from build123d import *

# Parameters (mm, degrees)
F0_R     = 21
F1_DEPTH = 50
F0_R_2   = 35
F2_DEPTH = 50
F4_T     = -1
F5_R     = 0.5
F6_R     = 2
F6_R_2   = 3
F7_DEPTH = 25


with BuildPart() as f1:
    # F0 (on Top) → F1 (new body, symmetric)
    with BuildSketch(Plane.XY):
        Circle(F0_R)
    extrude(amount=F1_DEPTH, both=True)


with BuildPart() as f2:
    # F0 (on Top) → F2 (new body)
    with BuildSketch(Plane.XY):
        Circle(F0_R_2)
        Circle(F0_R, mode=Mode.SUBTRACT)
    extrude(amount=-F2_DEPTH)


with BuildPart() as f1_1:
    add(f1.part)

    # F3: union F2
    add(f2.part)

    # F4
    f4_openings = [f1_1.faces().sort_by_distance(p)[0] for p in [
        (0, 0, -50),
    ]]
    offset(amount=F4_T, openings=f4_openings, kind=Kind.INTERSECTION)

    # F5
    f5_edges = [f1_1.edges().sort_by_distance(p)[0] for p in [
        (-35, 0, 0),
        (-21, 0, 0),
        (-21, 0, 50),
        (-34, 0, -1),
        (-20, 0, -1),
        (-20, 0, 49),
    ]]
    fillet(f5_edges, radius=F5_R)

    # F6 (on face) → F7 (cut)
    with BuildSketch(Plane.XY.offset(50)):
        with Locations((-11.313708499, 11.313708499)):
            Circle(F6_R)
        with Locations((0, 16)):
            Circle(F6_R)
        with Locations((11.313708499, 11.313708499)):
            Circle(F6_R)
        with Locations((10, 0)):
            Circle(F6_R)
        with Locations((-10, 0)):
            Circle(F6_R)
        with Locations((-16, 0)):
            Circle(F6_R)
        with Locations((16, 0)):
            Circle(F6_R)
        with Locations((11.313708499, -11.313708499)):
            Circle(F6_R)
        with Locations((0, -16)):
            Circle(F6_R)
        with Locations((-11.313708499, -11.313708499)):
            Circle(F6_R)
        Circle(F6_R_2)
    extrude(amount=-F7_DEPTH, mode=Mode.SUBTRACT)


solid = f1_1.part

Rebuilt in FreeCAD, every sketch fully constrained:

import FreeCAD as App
import Part
import Sketcher


def edges_at(feature, points):
    """Names of the edges that pass closest to the given points."""
    edges = feature.Shape.Edges
    near = lambda p: min(range(len(edges)), key=lambda i: edges[i].distToShape(Part.Vertex(*p))[0])
    return sorted({f"Edge{near(p) + 1}" for p in points})


def faces_at(feature, points):
    """Names of the faces that lie closest to the given points."""
    faces = feature.Shape.Faces
    near = lambda p: min(range(len(faces)), key=lambda i: faces[i].distToShape(Part.Vertex(*p))[0])
    return sorted({f"Face{near(p) + 1}" for p in points})

doc = App.newDocument("Part")
params = doc.addObject("Spreadsheet::Sheet", "Params")
for row, (alias, value) in enumerate([
    ("sketch1_diameter", "42 mm"),
    ("pad1_length", "100 mm"),
    ("sketch2_diameter", "70 mm"),
    ("sketch2_diameter2", "42 mm"),
    ("pad2_length", "50 mm"),
    ("thickness_wall", "1 mm"),
    ("fillet_radius", "0.5 mm"),
    ("sketch3_diameter", "4 mm"),
    ("sketch3_diameter2", "6 mm"),
    ("pocket1_length", "25 mm"),
], start=1):
    params.set(f"A{row}", alias)
    params.set(f"B{row}", "=" + value)
    params.setAlias(f"B{row}", alias)

body = doc.addObject("PartDesign::Body", "Body")

sketch1 = body.newObject("Sketcher::SketchObject", "Sketch")
sketch1.AttachmentSupport = (doc.getObject("XY_Plane"), [""])
sketch1.MapMode = "FlatFace"
sketch1.addGeometry(Part.Circle(App.Vector(0, 0, 0), App.Vector(0, 0, 1), 21), False)
sketch1.addConstraint([
    Sketcher.Constraint("Coincident", 0, 3, -1, 1),
    Sketcher.Constraint("Diameter", 0, 42.0),
])
sketch1.setExpression("Constraints[1]", "Params.sketch1_diameter")
pad1 = body.newObject("PartDesign::Pad", "Pad")
pad1.Profile = sketch1
pad1.setExpression("Length", "Params.pad1_length")
pad1.Midplane = True
body2 = doc.addObject("PartDesign::Body", "Body001")

sketch2 = body2.newObject("Sketcher::SketchObject", "Sketch001")
sketch2.AttachmentSupport = (doc.getObject("XY_Plane001"), [""])
sketch2.MapMode = "FlatFace"
sketch2.addGeometry([
    Part.Circle(App.Vector(0, 0, 0), App.Vector(0, 0, 1), 35),
    Part.Circle(App.Vector(0, 0, 0), App.Vector(0, 0, 1), 21),
], False)
sketch2.addConstraint([
    Sketcher.Constraint("Coincident", 0, 3, -1, 1),
    Sketcher.Constraint("Coincident", 1, 3, -1, 1),
    Sketcher.Constraint("Diameter", 0, 70.0),
    Sketcher.Constraint("Diameter", 1, 42.0),
])
sketch2.setExpression("Constraints[2]", "Params.sketch2_diameter")
sketch2.setExpression("Constraints[3]", "Params.sketch2_diameter2")
pad2 = body2.newObject("PartDesign::Pad", "Pad001")
pad2.Profile = sketch2
pad2.setExpression("Length", "Params.pad2_length")
pad2.Reversed = True
doc.recompute()

boolean = body.newObject("PartDesign::Boolean", "Boolean")
boolean.Type = "Fuse"
boolean.addObjects([body2])
doc.recompute()

thickness = body.newObject("PartDesign::Thickness", "Thickness")
thickness.Base = (boolean, faces_at(boolean, [(0, 0, -50)]))
thickness.setExpression("Value", "Params.thickness_wall")
thickness.Reversed = True
thickness.Join = "Intersection"
doc.recompute()

fillet = body.newObject("PartDesign::Fillet", "Fillet")
fillet.Base = (thickness, edges_at(thickness, [
    (-35, 0, 0),
    (-21, 0, 0),
    (-21, 0, 50),
    (-34, 0, -1),
    (-20, 0, -1),
    (-20, 0, 49),
]))
fillet.setExpression("Radius", "Params.fillet_radius")

sketch3 = body.newObject("Sketcher::SketchObject", "Sketch002")
sketch3.AttachmentSupport = (doc.getObject("XY_Plane"), [""])
sketch3.MapMode = "FlatFace"
sketch3.AttachmentOffset = App.Placement(App.Vector(0, 0, 50), App.Rotation())
sketch3.addGeometry([
    Part.Circle(App.Vector(-11.3, 11.3, 0), App.Vector(0, 0, 1), 2),
    Part.Circle(App.Vector(0, 16, 0), App.Vector(0, 0, 1), 2),
    Part.Circle(App.Vector(11.3, 11.3, 0), App.Vector(0, 0, 1), 2),
    Part.Circle(App.Vector(10, 0, 0), App.Vector(0, 0, 1), 2),
    Part.Circle(App.Vector(-10, 0, 0), App.Vector(0, 0, 1), 2),
    Part.Circle(App.Vector(-16, 0, 0), App.Vector(0, 0, 1), 2),
    Part.Circle(App.Vector(16, 0, 0), App.Vector(0, 0, 1), 2),
    Part.Circle(App.Vector(11.3, -11.3, 0), App.Vector(0, 0, 1), 2),
    Part.Circle(App.Vector(0, -16, 0), App.Vector(0, 0, 1), 2),
    Part.Circle(App.Vector(-11.3, -11.3, 0), App.Vector(0, 0, 1), 2),
    Part.Circle(App.Vector(0, 0, 0), App.Vector(0, 0, 1), 3),
], False)
sketch3.addConstraint([
    Sketcher.Constraint("Coincident", 10, 3, -1, 1),
    Sketcher.Constraint("Equal", 0, 1),
    Sketcher.Constraint("Equal", 1, 2),
    Sketcher.Constraint("Equal", 2, 3),
    Sketcher.Constraint("Equal", 3, 4),
    Sketcher.Constraint("Equal", 4, 5),
    Sketcher.Constraint("Equal", 5, 6),
    Sketcher.Constraint("Equal", 6, 7),
    Sketcher.Constraint("Equal", 7, 8),
    Sketcher.Constraint("Equal", 8, 9),
    Sketcher.Constraint("Symmetric", 3, 3, 4, 3, -1, 1),
    Sketcher.Constraint("Symmetric", 5, 3, 6, 3, -1, 1),
    Sketcher.Constraint("Symmetric", 0, 3, 7, 3, -1, 1),
    Sketcher.Constraint("Symmetric", 1, 3, 8, 3, -1, 1),
    Sketcher.Constraint("Symmetric", 2, 3, 9, 3, -1, 1),
    Sketcher.Constraint("Symmetric", 0, 3, 2, 3, -2),
    Sketcher.Constraint("PointOnObject", 1, 3, -2),
    Sketcher.Constraint("PointOnObject", 3, 3, -1),
    Sketcher.Constraint("PointOnObject", 5, 3, -1),
    Sketcher.Constraint("Diameter", 0, 4.0),
    Sketcher.Constraint("Diameter", 10, 6.0),
    Sketcher.Constraint("DistanceY", -1, 1, 1, 3, 16.0),
    Sketcher.Constraint("DistanceX", -1, 1, 3, 3, 10.0),
    Sketcher.Constraint("DistanceX", 5, 3, -1, 1, 16.0),
    Sketcher.Constraint("DistanceX", 0, 3, -1, 1, 11.313708),
    Sketcher.Constraint("DistanceY", -1, 1, 0, 3, 11.313708),
])
sketch3.setExpression("Constraints[19]", "Params.sketch3_diameter")
sketch3.setExpression("Constraints[20]", "Params.sketch3_diameter2")
pocket1 = body.newObject("PartDesign::Pocket", "Pocket")
pocket1.Profile = sketch3
pocket1.setExpression("Length", "Params.pocket1_length")

doc.recompute()
